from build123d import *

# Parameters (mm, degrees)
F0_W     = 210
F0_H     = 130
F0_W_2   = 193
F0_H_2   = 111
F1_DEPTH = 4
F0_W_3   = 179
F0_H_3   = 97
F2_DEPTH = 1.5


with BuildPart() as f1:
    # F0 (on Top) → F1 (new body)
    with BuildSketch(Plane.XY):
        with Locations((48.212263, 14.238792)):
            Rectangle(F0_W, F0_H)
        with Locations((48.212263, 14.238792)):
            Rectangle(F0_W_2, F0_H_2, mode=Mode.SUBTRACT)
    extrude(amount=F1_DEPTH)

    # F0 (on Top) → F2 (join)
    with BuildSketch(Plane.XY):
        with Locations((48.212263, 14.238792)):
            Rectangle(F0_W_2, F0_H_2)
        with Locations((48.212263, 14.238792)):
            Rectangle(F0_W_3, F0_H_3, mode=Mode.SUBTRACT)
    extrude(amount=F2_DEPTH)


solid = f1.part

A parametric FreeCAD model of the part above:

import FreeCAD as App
import Part
import Sketcher

V = App.Vector


def add_polygon(sketch, points):
    """Adds a closed chain of lines whose ends are joined by coincident constraints."""
    first, n = sketch.GeometryCount, len(points)
    for a, b in zip(points, points[1:] + points[:1]):
        sketch.addGeometry(Part.LineSegment(App.Vector(*a, 0), App.Vector(*b, 0)), False)
    for i in range(n):
        sketch.addConstraint(Sketcher.Constraint("Coincident", first + i, 2, first + (i + 1) % n, 1))

doc = App.newDocument("Part")
params = doc.addObject("Spreadsheet::Sheet", "Params")
for row, (alias, value) in enumerate([
    ("sketch1_width", "210 mm"),
    ("sketch1_width2", "193 mm"),
    ("sketch1_height", "130 mm"),
    ("sketch1_height2", "111 mm"),
    ("pad1_length", "4 mm"),
    ("sketch2_width", "193 mm"),
    ("sketch2_width2", "179 mm"),
    ("sketch2_height", "111 mm"),
    ("sketch2_height2", "97 mm"),
    ("pad2_length", "1.5 mm"),
], start=1):
    params.set(f"A{row}", alias)
    params.set(f"B{row}", "=" + value)
    params.setAlias(f"B{row}", alias)

body = doc.addObject("PartDesign::Body", "Body")

sketch1 = body.newObject("Sketcher::SketchObject", "Sketch")
sketch1.AttachmentSupport = (doc.getObject("XY_Plane"), [""])
sketch1.MapMode = "FlatFace"
add_polygon(sketch1, [(-57, 79), (-57, -51), (153, -51), (153, 79)])
add_polygon(sketch1, [(145, -41), (-48, -41), (-48, 70), (145, 70)])
sketch1.addConstraint([
    Sketcher.Constraint("Vertical", 0),
    Sketcher.Constraint("Horizontal", 1),
    Sketcher.Constraint("Vertical", 2),
    Sketcher.Constraint("Horizontal", 3),
    Sketcher.Constraint("Horizontal", 4),
    Sketcher.Constraint("Vertical", 5),
    Sketcher.Constraint("Horizontal", 6),
    Sketcher.Constraint("Vertical", 7),
    Sketcher.Constraint("DistanceX", 1, 1, 1, 2, 210.0),
    Sketcher.Constraint("DistanceX", 4, 2, 4, 1, 193.0),
    Sketcher.Constraint("DistanceY", 0, 2, 0, 1, 130.0),
    Sketcher.Constraint("DistanceY", 5, 1, 5, 2, 111.0),
    Sketcher.Constraint("DistanceX", 0, 2, 4, 2, 8.5),
    Sketcher.Constraint("DistanceY", 0, 2, 4, 2, 9.5),
    Sketcher.Constraint("DistanceY", 0, 2, -1, 1, 50.761208),
    Sketcher.Constraint("DistanceX", 0, 2, -1, 1, 56.787737),
])
sketch1.setExpression("Constraints[16]", "Params.sketch1_width")
sketch1.setExpression("Constraints[17]", "Params.sketch1_width2")
sketch1.setExpression("Constraints[18]", "Params.sketch1_height")
sketch1.setExpression("Constraints[19]", "Params.sketch1_height2")
pad1 = body.newObject("PartDesign::Pad", "Pad")
pad1.Profile = sketch1
pad1.setExpression("Length", "Params.pad1_length")

sketch2 = body.newObject("Sketcher::SketchObject", "Sketch001")
sketch2.AttachmentSupport = (doc.getObject("XY_Plane"), [""])
sketch2.MapMode = "FlatFace"
add_polygon(sketch2, [(-48, 70), (-48, -41), (145, -41), (145, 70)])
add_polygon(sketch2, [(138, -34), (-41, -34), (-41, 63), (138, 63)])
sketch2.addConstraint([
    Sketcher.Constraint("Vertical", 0),
    Sketcher.Constraint("Horizontal", 1),
    Sketcher.Constraint("Vertical", 2),
    Sketcher.Constraint("Horizontal", 3),
    Sketcher.Constraint("Horizontal", 4),
    Sketcher.Constraint("Vertical", 5),
    Sketcher.Constraint("Horizontal", 6),
    Sketcher.Constraint("Vertical", 7),
    Sketcher.Constraint("DistanceX", 1, 1, 1, 2, 193.0),
    Sketcher.Constraint("DistanceX", 4, 2, 4, 1, 179.0),
    Sketcher.Constraint("DistanceY", 0, 2, 0, 1, 111.0),
    Sketcher.Constraint("DistanceY", 5, 1, 5, 2, 97.0),
    Sketcher.Constraint("DistanceX", 0, 2, 4, 2, 7.0),
    Sketcher.Constraint("DistanceY", 0, 2, 4, 2, 7.0),
    Sketcher.Constraint("DistanceY", 0, 2, -1, 1, 41.261208),
    Sketcher.Constraint("DistanceX", 0, 2, -1, 1, 48.287737),
])
sketch2.setExpression("Constraints[16]", "Params.sketch2_width")
sketch2.setExpression("Constraints[17]", "Params.sketch2_width2")
sketch2.setExpression("Constraints[18]", "Params.sketch2_height")
sketch2.setExpression("Constraints[19]", "Params.sketch2_height2")
pad2 = body.newObject("PartDesign::Pad", "Pad001")
pad2.Profile = sketch2
pad2.setExpression("Length", "Params.pad2_length")

doc.recompute()
